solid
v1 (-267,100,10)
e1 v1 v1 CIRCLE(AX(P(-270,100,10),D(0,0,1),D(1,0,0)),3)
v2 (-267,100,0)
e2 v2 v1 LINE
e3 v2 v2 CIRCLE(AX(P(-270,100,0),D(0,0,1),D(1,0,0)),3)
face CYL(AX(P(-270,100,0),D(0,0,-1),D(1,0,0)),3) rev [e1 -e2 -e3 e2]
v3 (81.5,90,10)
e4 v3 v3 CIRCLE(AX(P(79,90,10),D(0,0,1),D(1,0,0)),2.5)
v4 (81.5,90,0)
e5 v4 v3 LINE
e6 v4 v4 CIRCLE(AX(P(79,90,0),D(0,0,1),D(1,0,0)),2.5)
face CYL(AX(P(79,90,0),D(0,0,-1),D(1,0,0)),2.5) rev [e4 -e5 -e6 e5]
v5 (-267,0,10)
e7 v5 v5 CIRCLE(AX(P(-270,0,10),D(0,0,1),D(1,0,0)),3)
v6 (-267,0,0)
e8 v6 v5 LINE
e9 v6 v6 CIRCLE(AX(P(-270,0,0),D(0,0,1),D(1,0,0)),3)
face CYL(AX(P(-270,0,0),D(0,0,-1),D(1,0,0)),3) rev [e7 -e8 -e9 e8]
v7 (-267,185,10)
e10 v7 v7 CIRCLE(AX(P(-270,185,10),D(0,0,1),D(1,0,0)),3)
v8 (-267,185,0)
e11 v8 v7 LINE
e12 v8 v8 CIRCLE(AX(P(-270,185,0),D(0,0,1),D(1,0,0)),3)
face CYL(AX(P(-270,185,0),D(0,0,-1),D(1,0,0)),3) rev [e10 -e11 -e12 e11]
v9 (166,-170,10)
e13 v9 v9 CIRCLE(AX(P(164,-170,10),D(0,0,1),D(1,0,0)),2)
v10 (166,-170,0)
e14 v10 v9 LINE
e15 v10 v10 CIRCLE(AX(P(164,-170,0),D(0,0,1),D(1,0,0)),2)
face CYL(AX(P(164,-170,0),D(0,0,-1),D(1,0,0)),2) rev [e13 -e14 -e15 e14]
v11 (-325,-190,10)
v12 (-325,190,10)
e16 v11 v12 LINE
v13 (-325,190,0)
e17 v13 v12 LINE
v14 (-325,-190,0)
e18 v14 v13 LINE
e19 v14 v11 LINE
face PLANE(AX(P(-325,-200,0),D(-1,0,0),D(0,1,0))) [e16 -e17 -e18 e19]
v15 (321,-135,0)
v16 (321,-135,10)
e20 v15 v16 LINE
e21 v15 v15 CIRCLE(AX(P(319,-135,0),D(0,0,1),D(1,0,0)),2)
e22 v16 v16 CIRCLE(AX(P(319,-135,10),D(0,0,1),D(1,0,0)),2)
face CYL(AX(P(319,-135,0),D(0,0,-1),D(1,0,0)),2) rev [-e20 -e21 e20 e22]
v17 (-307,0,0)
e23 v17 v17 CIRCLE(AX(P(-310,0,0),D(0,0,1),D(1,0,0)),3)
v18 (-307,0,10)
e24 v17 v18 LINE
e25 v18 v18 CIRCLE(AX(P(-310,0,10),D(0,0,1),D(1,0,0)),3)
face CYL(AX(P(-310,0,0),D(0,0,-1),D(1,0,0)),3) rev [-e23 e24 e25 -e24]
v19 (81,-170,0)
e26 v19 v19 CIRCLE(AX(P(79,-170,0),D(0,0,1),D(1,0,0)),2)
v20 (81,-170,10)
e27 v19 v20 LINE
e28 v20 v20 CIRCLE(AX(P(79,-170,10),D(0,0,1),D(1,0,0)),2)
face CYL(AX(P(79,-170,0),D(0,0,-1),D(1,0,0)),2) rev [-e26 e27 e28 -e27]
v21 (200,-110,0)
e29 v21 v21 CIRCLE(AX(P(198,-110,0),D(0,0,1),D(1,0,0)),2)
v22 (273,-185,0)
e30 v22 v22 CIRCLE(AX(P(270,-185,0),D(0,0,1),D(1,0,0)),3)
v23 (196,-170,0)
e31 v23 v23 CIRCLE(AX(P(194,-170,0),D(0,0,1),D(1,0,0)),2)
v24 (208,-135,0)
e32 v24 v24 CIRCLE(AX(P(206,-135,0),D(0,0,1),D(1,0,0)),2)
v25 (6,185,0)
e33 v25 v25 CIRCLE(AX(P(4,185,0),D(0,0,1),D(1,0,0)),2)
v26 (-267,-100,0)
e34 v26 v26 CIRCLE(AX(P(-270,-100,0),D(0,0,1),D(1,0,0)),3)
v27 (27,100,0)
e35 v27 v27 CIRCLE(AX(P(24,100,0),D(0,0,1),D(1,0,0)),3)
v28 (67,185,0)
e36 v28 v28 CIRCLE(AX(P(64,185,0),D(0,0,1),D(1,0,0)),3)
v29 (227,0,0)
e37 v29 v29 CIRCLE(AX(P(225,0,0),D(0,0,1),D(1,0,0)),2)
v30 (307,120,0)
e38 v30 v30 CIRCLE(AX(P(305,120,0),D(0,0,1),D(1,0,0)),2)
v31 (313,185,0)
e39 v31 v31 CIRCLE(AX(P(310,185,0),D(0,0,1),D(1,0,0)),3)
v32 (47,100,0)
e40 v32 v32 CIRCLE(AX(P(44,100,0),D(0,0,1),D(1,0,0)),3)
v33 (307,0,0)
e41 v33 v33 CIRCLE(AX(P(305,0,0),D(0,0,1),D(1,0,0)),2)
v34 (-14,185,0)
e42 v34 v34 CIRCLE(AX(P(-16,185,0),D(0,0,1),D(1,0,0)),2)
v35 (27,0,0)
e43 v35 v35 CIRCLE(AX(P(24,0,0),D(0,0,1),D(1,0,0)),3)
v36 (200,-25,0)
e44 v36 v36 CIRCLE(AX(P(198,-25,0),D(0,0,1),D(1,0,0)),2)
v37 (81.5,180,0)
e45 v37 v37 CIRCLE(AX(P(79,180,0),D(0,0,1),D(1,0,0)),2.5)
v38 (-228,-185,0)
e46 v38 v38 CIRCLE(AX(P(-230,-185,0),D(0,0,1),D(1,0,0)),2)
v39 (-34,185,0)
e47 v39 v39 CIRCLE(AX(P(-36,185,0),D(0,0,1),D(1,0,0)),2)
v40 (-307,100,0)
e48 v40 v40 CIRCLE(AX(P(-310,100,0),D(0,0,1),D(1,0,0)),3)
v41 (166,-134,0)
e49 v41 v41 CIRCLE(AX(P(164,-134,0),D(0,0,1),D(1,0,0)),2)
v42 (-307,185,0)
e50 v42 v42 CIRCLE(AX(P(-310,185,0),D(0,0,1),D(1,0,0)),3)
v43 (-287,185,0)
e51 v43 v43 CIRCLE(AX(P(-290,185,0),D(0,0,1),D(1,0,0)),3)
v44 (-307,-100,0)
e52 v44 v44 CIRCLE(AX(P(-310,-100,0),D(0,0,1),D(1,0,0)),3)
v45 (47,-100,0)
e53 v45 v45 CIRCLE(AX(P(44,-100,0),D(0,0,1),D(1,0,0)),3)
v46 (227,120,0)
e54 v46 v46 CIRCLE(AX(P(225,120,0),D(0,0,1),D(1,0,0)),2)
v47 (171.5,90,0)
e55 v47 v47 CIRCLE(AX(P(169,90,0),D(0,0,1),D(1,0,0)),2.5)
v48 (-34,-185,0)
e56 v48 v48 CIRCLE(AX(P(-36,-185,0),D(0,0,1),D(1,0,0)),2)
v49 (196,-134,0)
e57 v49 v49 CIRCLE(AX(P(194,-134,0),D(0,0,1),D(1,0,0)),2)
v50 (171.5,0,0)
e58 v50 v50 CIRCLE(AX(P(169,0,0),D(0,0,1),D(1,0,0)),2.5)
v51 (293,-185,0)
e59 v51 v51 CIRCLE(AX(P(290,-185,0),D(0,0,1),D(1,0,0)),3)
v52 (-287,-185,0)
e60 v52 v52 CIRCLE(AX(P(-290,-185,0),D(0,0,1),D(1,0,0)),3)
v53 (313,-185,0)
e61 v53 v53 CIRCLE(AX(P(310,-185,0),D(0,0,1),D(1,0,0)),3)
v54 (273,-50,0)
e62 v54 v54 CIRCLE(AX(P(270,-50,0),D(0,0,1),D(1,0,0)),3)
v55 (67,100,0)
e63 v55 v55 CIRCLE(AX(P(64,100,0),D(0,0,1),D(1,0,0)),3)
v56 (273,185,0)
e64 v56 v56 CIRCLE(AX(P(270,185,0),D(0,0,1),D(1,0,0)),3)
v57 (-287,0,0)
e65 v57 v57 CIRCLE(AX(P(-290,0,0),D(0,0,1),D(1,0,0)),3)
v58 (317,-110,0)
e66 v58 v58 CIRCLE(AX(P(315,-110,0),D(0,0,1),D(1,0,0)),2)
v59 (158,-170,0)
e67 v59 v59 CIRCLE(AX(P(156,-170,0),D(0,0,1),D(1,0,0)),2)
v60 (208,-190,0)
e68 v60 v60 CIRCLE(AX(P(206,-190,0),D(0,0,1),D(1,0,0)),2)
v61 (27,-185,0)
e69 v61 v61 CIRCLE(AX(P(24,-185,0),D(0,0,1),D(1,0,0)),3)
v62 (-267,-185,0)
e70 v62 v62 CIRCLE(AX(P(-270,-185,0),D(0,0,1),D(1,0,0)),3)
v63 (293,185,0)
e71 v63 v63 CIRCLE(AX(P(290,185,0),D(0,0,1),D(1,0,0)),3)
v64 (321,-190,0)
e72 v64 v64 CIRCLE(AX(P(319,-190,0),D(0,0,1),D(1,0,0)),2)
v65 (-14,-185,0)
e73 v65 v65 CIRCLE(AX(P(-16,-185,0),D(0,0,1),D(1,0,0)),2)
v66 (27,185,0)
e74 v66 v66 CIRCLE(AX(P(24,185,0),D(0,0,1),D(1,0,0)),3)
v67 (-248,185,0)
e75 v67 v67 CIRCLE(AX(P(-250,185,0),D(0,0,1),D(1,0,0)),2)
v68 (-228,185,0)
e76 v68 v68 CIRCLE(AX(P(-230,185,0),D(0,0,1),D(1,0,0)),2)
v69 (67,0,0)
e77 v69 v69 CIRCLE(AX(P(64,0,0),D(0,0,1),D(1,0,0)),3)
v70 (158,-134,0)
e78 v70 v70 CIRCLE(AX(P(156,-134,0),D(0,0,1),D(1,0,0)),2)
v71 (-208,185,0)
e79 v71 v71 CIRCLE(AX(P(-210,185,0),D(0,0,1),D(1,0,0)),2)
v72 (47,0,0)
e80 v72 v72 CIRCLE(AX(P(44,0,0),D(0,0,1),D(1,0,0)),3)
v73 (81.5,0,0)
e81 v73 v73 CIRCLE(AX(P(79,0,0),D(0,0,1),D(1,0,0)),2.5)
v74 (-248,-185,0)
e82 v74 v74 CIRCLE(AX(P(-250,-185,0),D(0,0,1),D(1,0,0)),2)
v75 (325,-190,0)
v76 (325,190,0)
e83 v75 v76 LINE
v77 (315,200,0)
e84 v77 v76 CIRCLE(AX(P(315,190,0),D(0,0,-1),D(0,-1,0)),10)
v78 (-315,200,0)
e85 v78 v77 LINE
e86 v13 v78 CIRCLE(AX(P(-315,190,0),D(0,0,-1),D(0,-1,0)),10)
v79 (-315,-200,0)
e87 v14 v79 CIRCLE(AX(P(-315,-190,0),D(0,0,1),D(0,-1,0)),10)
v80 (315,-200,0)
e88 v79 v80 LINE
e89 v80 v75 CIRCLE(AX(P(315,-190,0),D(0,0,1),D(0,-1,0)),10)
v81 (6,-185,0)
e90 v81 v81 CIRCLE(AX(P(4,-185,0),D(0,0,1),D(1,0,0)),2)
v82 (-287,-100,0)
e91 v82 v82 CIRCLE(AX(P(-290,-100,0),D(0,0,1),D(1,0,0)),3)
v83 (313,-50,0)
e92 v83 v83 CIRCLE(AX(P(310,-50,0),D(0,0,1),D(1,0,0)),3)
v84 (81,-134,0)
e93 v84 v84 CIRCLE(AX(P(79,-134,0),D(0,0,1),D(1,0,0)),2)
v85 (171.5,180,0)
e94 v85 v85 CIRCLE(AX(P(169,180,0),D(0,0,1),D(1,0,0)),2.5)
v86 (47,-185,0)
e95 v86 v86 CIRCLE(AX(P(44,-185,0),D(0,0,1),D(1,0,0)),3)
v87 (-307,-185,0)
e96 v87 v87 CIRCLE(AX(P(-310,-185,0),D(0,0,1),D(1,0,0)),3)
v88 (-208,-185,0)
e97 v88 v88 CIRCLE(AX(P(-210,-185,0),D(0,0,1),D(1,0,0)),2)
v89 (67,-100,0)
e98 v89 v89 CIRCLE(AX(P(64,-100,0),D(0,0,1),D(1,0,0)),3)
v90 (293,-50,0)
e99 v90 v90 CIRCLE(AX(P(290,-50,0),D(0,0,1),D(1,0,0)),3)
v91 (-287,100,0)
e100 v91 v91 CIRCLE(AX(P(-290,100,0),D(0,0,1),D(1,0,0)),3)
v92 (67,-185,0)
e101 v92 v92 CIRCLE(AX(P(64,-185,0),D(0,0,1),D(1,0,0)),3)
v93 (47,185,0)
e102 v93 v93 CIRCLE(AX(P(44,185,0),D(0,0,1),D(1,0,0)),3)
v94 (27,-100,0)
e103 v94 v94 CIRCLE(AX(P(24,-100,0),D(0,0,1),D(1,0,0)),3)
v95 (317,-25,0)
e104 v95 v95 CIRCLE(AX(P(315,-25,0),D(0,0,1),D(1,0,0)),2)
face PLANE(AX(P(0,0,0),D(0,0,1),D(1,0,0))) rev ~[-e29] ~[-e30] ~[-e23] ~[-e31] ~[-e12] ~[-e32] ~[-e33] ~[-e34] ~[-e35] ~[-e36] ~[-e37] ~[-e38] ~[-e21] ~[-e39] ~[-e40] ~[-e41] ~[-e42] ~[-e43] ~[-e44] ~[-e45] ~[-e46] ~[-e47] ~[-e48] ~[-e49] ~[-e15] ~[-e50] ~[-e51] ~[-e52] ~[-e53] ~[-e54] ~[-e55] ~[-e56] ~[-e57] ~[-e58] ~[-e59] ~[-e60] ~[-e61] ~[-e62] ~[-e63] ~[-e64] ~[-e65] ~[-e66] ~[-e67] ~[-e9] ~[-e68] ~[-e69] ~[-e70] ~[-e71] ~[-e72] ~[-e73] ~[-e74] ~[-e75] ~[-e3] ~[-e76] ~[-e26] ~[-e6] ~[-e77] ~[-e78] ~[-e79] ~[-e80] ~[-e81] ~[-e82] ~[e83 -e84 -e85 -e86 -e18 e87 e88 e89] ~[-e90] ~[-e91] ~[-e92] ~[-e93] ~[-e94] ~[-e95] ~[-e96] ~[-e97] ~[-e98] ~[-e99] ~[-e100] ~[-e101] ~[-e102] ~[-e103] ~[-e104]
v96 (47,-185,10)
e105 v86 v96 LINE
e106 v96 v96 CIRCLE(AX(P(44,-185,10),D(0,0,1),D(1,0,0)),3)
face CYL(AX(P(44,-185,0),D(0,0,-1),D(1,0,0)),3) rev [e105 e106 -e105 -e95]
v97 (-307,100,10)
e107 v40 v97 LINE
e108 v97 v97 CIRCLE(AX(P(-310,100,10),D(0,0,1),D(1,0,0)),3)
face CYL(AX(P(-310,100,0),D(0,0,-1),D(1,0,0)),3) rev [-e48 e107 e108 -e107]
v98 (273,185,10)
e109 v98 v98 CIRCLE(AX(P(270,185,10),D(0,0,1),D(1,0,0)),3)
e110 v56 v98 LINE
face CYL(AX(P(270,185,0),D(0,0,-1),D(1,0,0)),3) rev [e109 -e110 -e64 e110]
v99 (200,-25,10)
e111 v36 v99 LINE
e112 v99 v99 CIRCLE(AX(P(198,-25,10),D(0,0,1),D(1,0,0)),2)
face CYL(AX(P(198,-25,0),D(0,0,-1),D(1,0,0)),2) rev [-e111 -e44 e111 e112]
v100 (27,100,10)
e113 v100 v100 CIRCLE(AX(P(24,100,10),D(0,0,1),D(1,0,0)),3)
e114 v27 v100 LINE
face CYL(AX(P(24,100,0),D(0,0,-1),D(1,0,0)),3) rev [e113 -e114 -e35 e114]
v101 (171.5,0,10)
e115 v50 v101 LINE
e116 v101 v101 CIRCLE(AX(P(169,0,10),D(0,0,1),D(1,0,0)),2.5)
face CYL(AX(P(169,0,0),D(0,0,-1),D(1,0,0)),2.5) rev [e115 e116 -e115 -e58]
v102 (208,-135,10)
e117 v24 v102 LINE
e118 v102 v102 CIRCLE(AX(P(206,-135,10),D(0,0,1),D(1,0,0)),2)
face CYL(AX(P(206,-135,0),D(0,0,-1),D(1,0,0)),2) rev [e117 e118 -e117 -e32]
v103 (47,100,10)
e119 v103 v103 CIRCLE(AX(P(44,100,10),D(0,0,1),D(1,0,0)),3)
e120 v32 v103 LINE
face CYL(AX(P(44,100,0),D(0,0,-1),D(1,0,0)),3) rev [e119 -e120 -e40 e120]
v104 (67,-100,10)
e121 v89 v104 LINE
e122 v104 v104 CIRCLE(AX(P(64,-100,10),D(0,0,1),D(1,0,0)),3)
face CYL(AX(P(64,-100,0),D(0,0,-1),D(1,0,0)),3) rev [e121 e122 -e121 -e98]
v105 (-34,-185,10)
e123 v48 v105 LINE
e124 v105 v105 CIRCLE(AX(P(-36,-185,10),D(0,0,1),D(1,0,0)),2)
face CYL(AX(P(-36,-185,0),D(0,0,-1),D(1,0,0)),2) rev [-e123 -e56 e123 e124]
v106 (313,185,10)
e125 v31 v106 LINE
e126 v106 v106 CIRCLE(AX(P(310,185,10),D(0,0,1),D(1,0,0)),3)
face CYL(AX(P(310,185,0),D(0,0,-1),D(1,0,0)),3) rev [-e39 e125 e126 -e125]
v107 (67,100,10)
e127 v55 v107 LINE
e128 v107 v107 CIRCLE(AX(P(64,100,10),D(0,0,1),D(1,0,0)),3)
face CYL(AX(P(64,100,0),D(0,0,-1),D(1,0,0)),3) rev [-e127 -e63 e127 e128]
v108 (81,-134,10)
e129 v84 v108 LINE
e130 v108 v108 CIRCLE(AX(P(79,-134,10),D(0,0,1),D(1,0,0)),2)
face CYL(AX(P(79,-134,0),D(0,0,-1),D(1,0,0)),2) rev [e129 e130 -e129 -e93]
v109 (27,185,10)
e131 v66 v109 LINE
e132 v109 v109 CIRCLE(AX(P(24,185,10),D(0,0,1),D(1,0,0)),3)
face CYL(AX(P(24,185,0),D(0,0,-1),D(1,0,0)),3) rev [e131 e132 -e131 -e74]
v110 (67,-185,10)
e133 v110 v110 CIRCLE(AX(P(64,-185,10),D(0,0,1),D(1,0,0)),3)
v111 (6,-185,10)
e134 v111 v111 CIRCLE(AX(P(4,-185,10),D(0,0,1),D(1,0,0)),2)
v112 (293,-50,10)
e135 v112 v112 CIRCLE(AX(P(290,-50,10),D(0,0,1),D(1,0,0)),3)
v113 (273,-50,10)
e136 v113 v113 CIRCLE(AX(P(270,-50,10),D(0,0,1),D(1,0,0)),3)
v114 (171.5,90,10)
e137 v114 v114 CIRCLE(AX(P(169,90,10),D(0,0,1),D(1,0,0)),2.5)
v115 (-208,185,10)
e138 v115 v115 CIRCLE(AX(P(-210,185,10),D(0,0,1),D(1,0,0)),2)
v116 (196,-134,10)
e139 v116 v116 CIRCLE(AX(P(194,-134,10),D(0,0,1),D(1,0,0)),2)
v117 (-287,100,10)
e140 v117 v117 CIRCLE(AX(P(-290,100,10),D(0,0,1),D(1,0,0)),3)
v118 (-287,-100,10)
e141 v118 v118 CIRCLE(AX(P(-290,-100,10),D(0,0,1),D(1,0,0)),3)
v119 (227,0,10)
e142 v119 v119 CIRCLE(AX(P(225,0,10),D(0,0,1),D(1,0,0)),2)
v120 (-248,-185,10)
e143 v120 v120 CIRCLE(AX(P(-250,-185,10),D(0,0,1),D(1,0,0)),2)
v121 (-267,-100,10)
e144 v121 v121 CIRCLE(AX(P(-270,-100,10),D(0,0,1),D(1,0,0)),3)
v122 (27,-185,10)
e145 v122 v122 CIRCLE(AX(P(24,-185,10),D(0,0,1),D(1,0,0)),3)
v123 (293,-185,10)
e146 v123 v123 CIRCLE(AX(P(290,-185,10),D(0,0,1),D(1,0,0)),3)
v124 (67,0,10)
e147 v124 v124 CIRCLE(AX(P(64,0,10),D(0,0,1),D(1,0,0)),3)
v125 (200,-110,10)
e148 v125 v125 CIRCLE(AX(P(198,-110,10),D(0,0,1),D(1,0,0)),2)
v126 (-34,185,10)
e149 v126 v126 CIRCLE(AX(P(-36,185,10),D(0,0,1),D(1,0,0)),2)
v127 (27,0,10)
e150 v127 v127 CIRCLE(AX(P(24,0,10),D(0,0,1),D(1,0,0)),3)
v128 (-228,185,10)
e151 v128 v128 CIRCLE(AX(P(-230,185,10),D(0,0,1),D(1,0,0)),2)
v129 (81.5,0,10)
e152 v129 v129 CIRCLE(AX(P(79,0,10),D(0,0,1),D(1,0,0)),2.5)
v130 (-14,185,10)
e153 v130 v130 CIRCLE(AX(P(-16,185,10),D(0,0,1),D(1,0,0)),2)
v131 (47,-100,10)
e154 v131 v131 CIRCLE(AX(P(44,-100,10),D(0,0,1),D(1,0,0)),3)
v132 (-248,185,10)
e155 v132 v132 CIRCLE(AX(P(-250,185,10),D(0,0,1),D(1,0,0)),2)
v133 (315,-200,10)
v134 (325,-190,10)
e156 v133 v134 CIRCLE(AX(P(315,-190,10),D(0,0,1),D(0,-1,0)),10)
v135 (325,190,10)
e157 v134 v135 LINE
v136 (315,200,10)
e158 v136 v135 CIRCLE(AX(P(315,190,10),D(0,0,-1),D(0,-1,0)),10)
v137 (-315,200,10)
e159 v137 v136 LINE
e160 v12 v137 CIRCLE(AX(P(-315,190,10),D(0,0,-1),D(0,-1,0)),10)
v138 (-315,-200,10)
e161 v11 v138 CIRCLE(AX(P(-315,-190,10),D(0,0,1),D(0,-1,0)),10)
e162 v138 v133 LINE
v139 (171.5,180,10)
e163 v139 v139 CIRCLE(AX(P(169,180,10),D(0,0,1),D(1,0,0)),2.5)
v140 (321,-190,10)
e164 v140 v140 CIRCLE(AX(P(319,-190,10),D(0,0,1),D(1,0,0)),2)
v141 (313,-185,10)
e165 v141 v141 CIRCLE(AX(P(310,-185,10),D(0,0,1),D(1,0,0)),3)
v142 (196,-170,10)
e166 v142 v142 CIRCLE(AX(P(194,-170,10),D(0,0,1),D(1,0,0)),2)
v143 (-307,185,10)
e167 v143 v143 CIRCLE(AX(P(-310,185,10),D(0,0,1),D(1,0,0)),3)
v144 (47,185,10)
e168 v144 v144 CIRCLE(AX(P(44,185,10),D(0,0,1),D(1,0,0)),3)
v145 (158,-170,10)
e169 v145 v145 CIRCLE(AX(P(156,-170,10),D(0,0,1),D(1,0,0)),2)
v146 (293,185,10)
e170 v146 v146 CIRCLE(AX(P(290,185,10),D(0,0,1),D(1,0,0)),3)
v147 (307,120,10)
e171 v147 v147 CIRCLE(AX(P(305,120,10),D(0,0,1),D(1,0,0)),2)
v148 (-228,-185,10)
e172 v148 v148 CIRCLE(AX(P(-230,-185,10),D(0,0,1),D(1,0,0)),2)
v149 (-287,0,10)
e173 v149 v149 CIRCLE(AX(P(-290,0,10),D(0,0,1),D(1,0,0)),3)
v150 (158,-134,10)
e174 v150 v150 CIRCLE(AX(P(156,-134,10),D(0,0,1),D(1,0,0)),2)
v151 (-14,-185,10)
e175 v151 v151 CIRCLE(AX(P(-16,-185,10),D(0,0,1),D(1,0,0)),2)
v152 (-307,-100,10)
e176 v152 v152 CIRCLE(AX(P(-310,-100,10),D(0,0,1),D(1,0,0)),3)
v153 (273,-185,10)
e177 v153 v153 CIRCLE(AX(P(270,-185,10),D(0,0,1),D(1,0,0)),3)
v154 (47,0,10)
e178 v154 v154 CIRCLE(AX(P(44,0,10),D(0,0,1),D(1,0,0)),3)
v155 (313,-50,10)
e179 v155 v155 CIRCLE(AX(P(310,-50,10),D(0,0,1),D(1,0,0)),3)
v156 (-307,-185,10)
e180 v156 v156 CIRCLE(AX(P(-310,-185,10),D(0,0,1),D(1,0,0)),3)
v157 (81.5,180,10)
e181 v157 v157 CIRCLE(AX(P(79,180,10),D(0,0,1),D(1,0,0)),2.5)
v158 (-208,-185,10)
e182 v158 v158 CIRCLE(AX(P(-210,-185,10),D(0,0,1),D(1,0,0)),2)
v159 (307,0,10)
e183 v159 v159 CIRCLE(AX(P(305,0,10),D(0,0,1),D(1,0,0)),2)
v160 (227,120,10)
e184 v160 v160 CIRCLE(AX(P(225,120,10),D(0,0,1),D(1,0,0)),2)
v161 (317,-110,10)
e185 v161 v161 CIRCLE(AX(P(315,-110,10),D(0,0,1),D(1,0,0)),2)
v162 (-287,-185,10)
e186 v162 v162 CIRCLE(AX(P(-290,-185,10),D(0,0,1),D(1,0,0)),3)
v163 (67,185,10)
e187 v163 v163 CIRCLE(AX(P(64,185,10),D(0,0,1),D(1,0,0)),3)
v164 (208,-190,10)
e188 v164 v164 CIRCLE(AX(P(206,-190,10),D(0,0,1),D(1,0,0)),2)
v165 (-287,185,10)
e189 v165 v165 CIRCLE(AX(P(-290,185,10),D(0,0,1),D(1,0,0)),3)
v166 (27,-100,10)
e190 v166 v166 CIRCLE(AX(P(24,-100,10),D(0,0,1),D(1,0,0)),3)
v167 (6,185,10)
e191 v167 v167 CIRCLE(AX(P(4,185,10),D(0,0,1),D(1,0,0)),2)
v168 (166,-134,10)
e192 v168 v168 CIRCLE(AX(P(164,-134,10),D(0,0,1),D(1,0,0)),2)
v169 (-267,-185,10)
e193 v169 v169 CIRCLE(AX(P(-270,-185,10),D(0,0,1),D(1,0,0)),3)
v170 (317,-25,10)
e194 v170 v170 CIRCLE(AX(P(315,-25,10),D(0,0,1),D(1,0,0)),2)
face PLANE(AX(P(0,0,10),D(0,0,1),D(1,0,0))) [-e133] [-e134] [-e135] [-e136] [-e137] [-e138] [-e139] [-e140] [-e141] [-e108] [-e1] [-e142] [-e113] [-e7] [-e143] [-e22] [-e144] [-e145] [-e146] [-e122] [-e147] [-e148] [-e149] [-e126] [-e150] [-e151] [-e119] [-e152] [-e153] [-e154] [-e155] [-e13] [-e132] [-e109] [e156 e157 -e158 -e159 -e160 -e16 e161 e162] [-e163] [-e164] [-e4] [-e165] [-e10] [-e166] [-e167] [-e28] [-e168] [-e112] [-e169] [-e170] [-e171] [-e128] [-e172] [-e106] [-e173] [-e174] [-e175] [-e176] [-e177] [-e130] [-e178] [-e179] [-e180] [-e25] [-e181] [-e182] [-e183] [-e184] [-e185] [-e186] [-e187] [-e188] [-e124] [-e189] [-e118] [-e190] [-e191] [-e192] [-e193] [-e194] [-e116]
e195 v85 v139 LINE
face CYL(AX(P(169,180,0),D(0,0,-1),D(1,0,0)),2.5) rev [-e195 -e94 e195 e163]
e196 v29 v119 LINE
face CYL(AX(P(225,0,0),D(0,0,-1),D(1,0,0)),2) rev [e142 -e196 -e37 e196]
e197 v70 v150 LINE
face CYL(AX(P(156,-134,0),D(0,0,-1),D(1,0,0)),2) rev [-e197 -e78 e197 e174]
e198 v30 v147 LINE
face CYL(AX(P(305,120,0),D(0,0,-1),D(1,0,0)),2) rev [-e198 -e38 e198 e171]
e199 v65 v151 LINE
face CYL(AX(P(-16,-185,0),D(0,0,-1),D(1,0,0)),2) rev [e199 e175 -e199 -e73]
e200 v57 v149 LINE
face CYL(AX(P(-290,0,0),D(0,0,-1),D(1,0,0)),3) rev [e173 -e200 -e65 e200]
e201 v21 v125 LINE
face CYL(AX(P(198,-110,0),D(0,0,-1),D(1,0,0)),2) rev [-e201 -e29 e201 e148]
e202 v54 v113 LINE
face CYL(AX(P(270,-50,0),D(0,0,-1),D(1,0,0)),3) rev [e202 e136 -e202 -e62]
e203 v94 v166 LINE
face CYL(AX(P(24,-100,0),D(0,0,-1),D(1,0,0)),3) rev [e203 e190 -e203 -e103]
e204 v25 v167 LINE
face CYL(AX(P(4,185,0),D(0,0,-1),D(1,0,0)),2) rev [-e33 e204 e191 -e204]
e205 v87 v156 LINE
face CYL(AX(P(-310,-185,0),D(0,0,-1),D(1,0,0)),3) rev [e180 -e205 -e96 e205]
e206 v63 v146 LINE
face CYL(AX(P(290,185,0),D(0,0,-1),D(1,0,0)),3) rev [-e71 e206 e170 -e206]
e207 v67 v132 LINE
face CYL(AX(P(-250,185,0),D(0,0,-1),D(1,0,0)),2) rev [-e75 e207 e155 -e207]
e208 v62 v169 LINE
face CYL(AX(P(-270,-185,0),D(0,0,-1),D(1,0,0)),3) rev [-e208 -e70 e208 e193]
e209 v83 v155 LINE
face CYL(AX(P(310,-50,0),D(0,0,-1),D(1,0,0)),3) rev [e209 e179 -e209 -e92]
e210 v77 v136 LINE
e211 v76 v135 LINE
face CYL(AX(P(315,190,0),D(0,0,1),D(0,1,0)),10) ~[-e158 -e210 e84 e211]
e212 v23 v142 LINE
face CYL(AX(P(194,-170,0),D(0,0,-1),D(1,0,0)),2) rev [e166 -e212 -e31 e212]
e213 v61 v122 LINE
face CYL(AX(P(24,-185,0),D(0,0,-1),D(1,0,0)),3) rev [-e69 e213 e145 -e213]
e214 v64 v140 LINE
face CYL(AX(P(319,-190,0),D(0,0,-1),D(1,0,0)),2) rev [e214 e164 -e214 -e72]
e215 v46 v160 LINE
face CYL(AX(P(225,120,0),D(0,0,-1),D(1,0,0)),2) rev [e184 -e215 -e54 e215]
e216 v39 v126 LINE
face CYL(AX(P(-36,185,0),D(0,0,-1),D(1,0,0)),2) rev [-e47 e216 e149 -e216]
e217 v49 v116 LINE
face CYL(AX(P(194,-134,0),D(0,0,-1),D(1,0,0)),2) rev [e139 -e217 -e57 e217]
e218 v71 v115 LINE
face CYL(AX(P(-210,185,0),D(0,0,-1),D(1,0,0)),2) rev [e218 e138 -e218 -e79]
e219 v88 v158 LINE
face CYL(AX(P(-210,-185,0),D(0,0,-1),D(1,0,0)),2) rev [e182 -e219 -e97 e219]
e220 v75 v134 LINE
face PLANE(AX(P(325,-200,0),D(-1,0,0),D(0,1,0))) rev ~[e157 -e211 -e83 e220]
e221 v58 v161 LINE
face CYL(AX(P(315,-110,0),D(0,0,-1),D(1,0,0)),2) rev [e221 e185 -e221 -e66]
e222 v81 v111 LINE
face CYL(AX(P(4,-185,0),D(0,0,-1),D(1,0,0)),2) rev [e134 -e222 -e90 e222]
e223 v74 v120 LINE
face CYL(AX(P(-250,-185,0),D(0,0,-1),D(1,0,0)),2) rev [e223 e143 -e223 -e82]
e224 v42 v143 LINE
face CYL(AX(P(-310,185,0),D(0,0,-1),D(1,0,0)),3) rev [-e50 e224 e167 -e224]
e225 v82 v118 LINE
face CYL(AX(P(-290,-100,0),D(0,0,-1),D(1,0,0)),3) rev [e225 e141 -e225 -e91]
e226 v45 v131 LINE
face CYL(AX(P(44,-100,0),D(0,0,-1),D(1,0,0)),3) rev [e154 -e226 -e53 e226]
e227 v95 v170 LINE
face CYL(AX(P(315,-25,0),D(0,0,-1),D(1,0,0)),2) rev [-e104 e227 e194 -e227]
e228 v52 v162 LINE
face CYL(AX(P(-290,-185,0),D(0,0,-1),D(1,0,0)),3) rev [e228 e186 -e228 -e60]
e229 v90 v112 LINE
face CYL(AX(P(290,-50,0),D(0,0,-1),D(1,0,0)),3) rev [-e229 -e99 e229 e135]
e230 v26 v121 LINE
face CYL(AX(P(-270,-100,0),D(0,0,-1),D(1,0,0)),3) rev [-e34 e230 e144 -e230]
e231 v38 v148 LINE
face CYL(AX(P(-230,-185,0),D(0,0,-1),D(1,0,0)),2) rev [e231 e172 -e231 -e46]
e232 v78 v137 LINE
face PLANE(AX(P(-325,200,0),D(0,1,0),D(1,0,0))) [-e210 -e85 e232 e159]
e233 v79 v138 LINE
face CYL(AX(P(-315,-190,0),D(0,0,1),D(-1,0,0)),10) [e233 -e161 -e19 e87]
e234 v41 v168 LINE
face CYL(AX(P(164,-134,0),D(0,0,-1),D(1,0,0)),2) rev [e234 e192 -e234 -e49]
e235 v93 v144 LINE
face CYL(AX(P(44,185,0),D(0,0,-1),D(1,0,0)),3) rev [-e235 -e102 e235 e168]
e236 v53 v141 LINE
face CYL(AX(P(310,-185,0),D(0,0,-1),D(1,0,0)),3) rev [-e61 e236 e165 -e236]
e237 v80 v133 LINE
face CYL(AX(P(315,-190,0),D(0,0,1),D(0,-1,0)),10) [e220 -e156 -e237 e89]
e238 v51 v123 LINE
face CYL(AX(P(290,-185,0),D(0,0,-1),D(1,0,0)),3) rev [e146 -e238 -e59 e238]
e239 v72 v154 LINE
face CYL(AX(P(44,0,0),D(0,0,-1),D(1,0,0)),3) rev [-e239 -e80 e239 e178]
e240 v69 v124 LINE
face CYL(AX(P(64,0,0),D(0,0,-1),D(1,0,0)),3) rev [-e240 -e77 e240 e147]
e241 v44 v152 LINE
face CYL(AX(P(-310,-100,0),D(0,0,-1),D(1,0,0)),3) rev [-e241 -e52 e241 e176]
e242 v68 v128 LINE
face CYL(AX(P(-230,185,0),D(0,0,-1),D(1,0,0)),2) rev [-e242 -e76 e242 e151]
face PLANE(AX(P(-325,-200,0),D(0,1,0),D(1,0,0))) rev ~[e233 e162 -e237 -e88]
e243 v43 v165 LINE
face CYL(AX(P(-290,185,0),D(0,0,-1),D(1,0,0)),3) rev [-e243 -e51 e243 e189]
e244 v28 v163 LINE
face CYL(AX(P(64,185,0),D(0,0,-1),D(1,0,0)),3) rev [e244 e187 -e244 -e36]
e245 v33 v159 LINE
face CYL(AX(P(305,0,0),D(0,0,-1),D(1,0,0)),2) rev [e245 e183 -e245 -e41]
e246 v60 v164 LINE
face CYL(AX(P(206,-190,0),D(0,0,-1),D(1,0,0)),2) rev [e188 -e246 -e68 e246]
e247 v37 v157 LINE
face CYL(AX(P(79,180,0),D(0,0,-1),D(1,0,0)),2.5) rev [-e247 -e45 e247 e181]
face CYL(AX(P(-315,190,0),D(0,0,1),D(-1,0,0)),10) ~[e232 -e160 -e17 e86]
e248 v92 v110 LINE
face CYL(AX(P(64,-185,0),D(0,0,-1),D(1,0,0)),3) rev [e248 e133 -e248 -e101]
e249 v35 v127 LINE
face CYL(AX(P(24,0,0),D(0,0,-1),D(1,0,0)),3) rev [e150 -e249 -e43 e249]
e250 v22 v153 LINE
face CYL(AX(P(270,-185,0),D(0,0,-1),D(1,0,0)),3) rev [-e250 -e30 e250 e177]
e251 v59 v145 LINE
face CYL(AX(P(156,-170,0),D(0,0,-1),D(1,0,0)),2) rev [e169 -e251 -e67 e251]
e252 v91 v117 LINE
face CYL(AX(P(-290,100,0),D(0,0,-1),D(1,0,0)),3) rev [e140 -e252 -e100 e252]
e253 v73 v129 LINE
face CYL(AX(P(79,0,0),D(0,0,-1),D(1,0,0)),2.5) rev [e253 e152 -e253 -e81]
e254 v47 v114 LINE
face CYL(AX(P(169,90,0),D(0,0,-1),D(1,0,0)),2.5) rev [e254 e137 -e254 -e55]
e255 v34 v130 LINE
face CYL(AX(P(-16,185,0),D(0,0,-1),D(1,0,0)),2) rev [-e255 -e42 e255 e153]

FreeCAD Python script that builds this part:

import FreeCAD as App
import Part
import Sketcher

V = App.Vector


def edges_at(feature, points):
    """Names of the edges that pass closest to the given points."""
    edges = feature.Shape.Edges
    near = lambda p: min(range(len(edges)), key=lambda i: edges[i].distToShape(Part.Vertex(*p))[0])
    return sorted({f"Edge{near(p) + 1}" for p in points})


def add_polygon(sketch, points):
    """Adds a closed chain of lines whose ends are joined by coincident constraints."""
    first, n = sketch.GeometryCount, len(points)
    for a, b in zip(points, points[1:] + points[:1]):
        sketch.addGeometry(Part.LineSegment(App.Vector(*a, 0), App.Vector(*b, 0)), False)
    for i in range(n):
        sketch.addConstraint(Sketcher.Constraint("Coincident", first + i, 2, first + (i + 1) % n, 1))

doc = App.newDocument("Part")
body = doc.addObject("PartDesign::Body", "Body")

# Sketch on XY plane
sketch1 = doc.addObject("Sketcher::SketchObject", "Sketch")
body.addObject(sketch1)
sketch1.AttachmentSupport = (doc.XY_Plane, [""])
sketch1.MapMode = "FlatFace"
add_polygon(sketch1, [(-325, 200), (-325, -200), (325, -200), (325, 200)])  # lines 0-3
sketch1.addGeometry(Part.Circle(V(-310, -185, 0), V(0, 0, 1), 3), False)  # 4
sketch1.addGeometry(Part.Circle(V(-290, -185, 0), V(0, 0, 1), 3), False)  # 5
sketch1.addGeometry(Part.Circle(V(-270, -185, 0), V(0, 0, 1), 3), False)  # 6
sketch1.addGeometry(Part.Circle(V(-250, -185, 0), V(0, 0, 1), 2), False)  # 7
sketch1.addGeometry(Part.Circle(V(-230, -185, 0), V(0, 0, 1), 2), False)  # 8
sketch1.addGeometry(Part.Circle(V(-210, -185, 0), V(0, 0, 1), 2), False)  # 9
sketch1.addGeometry(Part.Circle(V(-310, -100, 0), V(0, 0, 1), 3), False)  # 10
sketch1.addGeometry(Part.Circle(V(-290, -100, 0), V(0, 0, 1), 3), False)  # 11
sketch1.addGeometry(Part.Circle(V(-270, -100, 0), V(0, 0, 1), 3), False)  # 12
sketch1.addGeometry(Part.Circle(V(-36, -185, 0), V(0, 0, 1), 2), False)  # 13
sketch1.addGeometry(Part.Circle(V(-16, -185, 0), V(0, 0, 1), 2), False)  # 14
sketch1.addGeometry(Part.Circle(V(4, -185, 0), V(0, 0, 1), 2), False)  # 15
sketch1.addGeometry(Part.Circle(V(24, -185, 0), V(0, 0, 1), 3), False)  # 16
sketch1.addGeometry(Part.Circle(V(44, -185, 0), V(0, 0, 1), 3), False)  # 17
sketch1.addGeometry(Part.Circle(V(64, -185, 0), V(0, 0, 1), 3), False)  # 18
sketch1.addGeometry(Part.Circle(V(79, -170, 0), V(0, 0, 1), 2), False)  # 19
sketch1.addGeometry(Part.Circle(V(156, -170, 0), V(0, 0, 1), 2), False)  # 20
sketch1.addGeometry(Part.Circle(V(79, -134, 0), V(0, 0, 1), 2), False)  # 21
sketch1.addGeometry(Part.Circle(V(24, -100, 0), V(0, 0, 1), 3), False)  # 22
sketch1.addGeometry(Part.Circle(V(44, -100, 0), V(0, 0, 1), 3), False)  # 23
sketch1.addGeometry(Part.Circle(V(64, -100, 0), V(0, 0, 1), 3), False)  # 24
sketch1.addGeometry(Part.Circle(V(156, -134, 0), V(0, 0, 1), 2), False)  # 25
sketch1.addGeometry(Part.Circle(V(164, -170, 0), V(0, 0, 1), 2), False)  # 26
sketch1.addGeometry(Part.Circle(V(194, -170, 0), V(0, 0, 1), 2), False)  # 27
sketch1.addGeometry(Part.Circle(V(206, -190, 0), V(0, 0, 1), 2), False)  # 28
sketch1.addGeometry(Part.Circle(V(270, -185, 0), V(0, 0, 1), 3), False)  # 29
sketch1.addGeometry(Part.Circle(V(290, -185, 0), V(0, 0, 1), 3), False)  # 30
sketch1.addGeometry(Part.Circle(V(319, -190, 0), V(0, 0, 1), 2), False)  # 31
sketch1.addGeometry(Part.Circle(V(310, -185, 0), V(0, 0, 1), 3), False)  # 32
sketch1.addGeometry(Part.Circle(V(164, -134, 0), V(0, 0, 1), 2), False)  # 33
sketch1.addGeometry(Part.Circle(V(194, -134, 0), V(0, 0, 1), 2), False)  # 34
sketch1.addGeometry(Part.Circle(V(206, -135, 0), V(0, 0, 1), 2), False)  # 35
sketch1.addGeometry(Part.Circle(V(198, -110, 0), V(0, 0, 1), 2), False)  # 36
sketch1.addGeometry(Part.Circle(V(319, -135, 0), V(0, 0, 1), 2), False)  # 37
sketch1.addGeometry(Part.Circle(V(315, -110, 0), V(0, 0, 1), 2), False)  # 38
sketch1.addGeometry(Part.Circle(V(270, -50, 0), V(0, 0, 1), 3), False)  # 39
sketch1.addGeometry(Part.Circle(V(290, -50, 0), V(0, 0, 1), 3), False)  # 40
sketch1.addGeometry(Part.Circle(V(310, -50, 0), V(0, 0, 1), 3), False)  # 41
sketch1.addGeometry(Part.Circle(V(198, -25, 0), V(0, 0, 1), 2), False)  # 42
sketch1.addGeometry(Part.Circle(V(315, -25, 0), V(0, 0, 1), 2), False)  # 43
sketch1.addGeometry(Part.Circle(V(-310, 0, 0), V(0, 0, 1), 3), False)  # 44
sketch1.addGeometry(Part.Circle(V(-290, 0, 0), V(0, 0, 1), 3), False)  # 45
sketch1.addGeometry(Part.Circle(V(-270, 0, 0), V(0, 0, 1), 3), False)  # 46
sketch1.addGeometry(Part.Circle(V(-310, 100, 0), V(0, 0, 1), 3), False)  # 47
sketch1.addGeometry(Part.Circle(V(-290, 100, 0), V(0, 0, 1), 3), False)  # 48
sketch1.addGeometry(Part.Circle(V(-270, 100, 0), V(0, 0, 1), 3), False)  # 49
sketch1.addGeometry(Part.Circle(V(-310, 185, 0), V(0, 0, 1), 3), False)  # 50
sketch1.addGeometry(Part.Circle(V(-290, 185, 0), V(0, 0, 1), 3), False)  # 51
sketch1.addGeometry(Part.Circle(V(-270, 185, 0), V(0, 0, 1), 3), False)  # 52
sketch1.addGeometry(Part.Circle(V(-250, 185, 0), V(0, 0, 1), 2), False)  # 53
sketch1.addGeometry(Part.Circle(V(-230, 185, 0), V(0, 0, 1), 2), False)  # 54
sketch1.addGeometry(Part.Circle(V(-210, 185, 0), V(0, 0, 1), 2), False)  # 55
sketch1.addGeometry(Part.Circle(V(-36, 185, 0), V(0, 0, 1), 2), False)  # 56
sketch1.addGeometry(Part.Circle(V(-16, 185, 0), V(0, 0, 1), 2), False)  # 57
sketch1.addGeometry(Part.Circle(V(24, 0, 0), V(0, 0, 1), 3), False)  # 58
sketch1.addGeometry(Part.Circle(V(44, 0, 0), V(0, 0, 1), 3), False)  # 59
sketch1.addGeometry(Part.Circle(V(64, 0, 0), V(0, 0, 1), 3), False)  # 60
sketch1.addGeometry(Part.Circle(V(79, 0, 0), V(0, 0, 1), 2.5), False)  # 61
sketch1.addGeometry(Part.Circle(V(79, 90, 0), V(0, 0, 1), 2.5), False)  # 62
sketch1.addGeometry(Part.Circle(V(169, 0, 0), V(0, 0, 1), 2.5), False)  # 63
sketch1.addGeometry(Part.Circle(V(225, 0, 0), V(0, 0, 1), 2), False)  # 64
sketch1.addGeometry(Part.Circle(V(305, 0, 0), V(0, 0, 1), 2), False)  # 65
sketch1.addGeometry(Part.Circle(V(169, 90, 0), V(0, 0, 1), 2.5), False)  # 66
sketch1.addGeometry(Part.Circle(V(24, 100, 0), V(0, 0, 1), 3), False)  # 67
sketch1.addGeometry(Part.Circle(V(44, 100, 0), V(0, 0, 1), 3), False)  # 68
sketch1.addGeometry(Part.Circle(V(64, 100, 0), V(0, 0, 1), 3), False)  # 69
sketch1.addGeometry(Part.Circle(V(4, 185, 0), V(0, 0, 1), 2), False)  # 70
sketch1.addGeometry(Part.Circle(V(24, 185, 0), V(0, 0, 1), 3), False)  # 71
sketch1.addGeometry(Part.Circle(V(44, 185, 0), V(0, 0, 1), 3), False)  # 72
sketch1.addGeometry(Part.Circle(V(79, 180, 0), V(0, 0, 1), 2.5), False)  # 73
sketch1.addGeometry(Part.Circle(V(64, 185, 0), V(0, 0, 1), 3), False)  # 74
sketch1.addGeometry(Part.Circle(V(225, 120, 0), V(0, 0, 1), 2), False)  # 75
sketch1.addGeometry(Part.Circle(V(305, 120, 0), V(0, 0, 1), 2), False)  # 76
sketch1.addGeometry(Part.Circle(V(169, 180, 0), V(0, 0, 1), 2.5), False)  # 77
sketch1.addGeometry(Part.Circle(V(270, 185, 0), V(0, 0, 1), 3), False)  # 78
sketch1.addGeometry(Part.Circle(V(290, 185, 0), V(0, 0, 1), 3), False)  # 79
sketch1.addGeometry(Part.Circle(V(310, 185, 0), V(0, 0, 1), 3), False)  # 80
sketch1.addConstraint(Sketcher.Constraint("Vertical", 0))
sketch1.addConstraint(Sketcher.Constraint("Horizontal", 1))
sketch1.addConstraint(Sketcher.Constraint("Vertical", 2))
sketch1.addConstraint(Sketcher.Constraint("Horizontal", 3))
sketch1.addConstraint(Sketcher.Constraint("Equal", 4, 5))
sketch1.addConstraint(Sketcher.Constraint("Equal", 5, 6))
sketch1.addConstraint(Sketcher.Constraint("Equal", 7, 8))
sketch1.addConstraint(Sketcher.Constraint("Equal", 8, 9))
sketch1.addConstraint(Sketcher.Constraint("Equal", 6, 10))
sketch1.addConstraint(Sketcher.Constraint("Equal", 10, 11))
sketch1.addConstraint(Sketcher.Constraint("Equal", 11, 12))
sketch1.addConstraint(Sketcher.Constraint("Equal", 9, 13))
sketch1.addConstraint(Sketcher.Constraint("Equal", 13, 14))
sketch1.addConstraint(Sketcher.Constraint("Equal", 14, 15))
sketch1.addConstraint(Sketcher.Constraint("Equal", 12, 16))
sketch1.addConstraint(Sketcher.Constraint("Equal", 16, 17))
sketch1.addConstraint(Sketcher.Constraint("Equal", 17, 18))
sketch1.addConstraint(Sketcher.Constraint("Equal", 15, 19))
sketch1.addConstraint(Sketcher.Constraint("Equal", 19, 20))
sketch1.addConstraint(Sketcher.Constraint("Equal", 20, 21))
sketch1.addConstraint(Sketcher.Constraint("Equal", 18, 22))
sketch1.addConstraint(Sketcher.Constraint("Equal", 22, 23))
sketch1.addConstraint(Sketcher.Constraint("Equal", 23, 24))
sketch1.addConstraint(Sketcher.Constraint("Equal", 21, 25))
sketch1.addConstraint(Sketcher.Constraint("Equal", 25, 26))
sketch1.addConstraint(Sketcher.Constraint("Equal", 26, 27))
sketch1.addConstraint(Sketcher.Constraint("Equal", 27, 28))
sketch1.addConstraint(Sketcher.Constraint("Equal", 24, 29))
sketch1.addConstraint(Sketcher.Constraint("Equal", 29, 30))
sketch1.addConstraint(Sketcher.Constraint("Equal", 28, 31))
sketch1.addConstraint(Sketcher.Constraint("Equal", 30, 32))
sketch1.addConstraint(Sketcher.Constraint("Equal", 31, 33))
sketch1.addConstraint(Sketcher.Constraint("Equal", 33, 34))
sketch1.addConstraint(Sketcher.Constraint("Equal", 34, 35))
sketch1.addConstraint(Sketcher.Constraint("Equal", 35, 36))
sketch1.addConstraint(Sketcher.Constraint("Equal", 36, 37))
sketch1.addConstraint(Sketcher.Constraint("Equal", 37, 38))
sketch1.addConstraint(Sketcher.Constraint("Equal", 32, 39))
sketch1.addConstraint(Sketcher.Constraint("Equal", 39, 40))
sketch1.addConstraint(Sketcher.Constraint("Equal", 40, 41))
sketch1.addConstraint(Sketcher.Constraint("Equal", 38, 42))
sketch1.addConstraint(Sketcher.Constraint("Equal", 42, 43))
sketch1.addConstraint(Sketcher.Constraint("Equal", 41, 44))
sketch1.addConstraint(Sketcher.Constraint("Equal", 44, 45))
sketch1.addConstraint(Sketcher.Constraint("Equal", 45, 46))
sketch1.addConstraint(Sketcher.Constraint("Equal", 46, 47))
sketch1.addConstraint(Sketcher.Constraint("Equal", 47, 48))
sketch1.addConstraint(Sketcher.Constraint("Equal", 48, 49))
sketch1.addConstraint(Sketcher.Constraint("Equal", 49, 50))
sketch1.addConstraint(Sketcher.Constraint("Equal", 50, 51))
sketch1.addConstraint(Sketcher.Constraint("Equal", 51, 52))
sketch1.addConstraint(Sketcher.Constraint("Equal", 43, 53))
sketch1.addConstraint(Sketcher.Constraint("Equal", 53, 54))
sketch1.addConstraint(Sketcher.Constraint("Equal", 54, 55))
sketch1.addConstraint(Sketcher.Constraint("Equal", 55, 56))
sketch1.addConstraint(Sketcher.Constraint("Equal", 56, 57))
sketch1.addConstraint(Sketcher.Constraint("Equal", 52, 58))
sketch1.addConstraint(Sketcher.Constraint("Equal", 58, 59))
sketch1.addConstraint(Sketcher.Constraint("Equal", 59, 60))
sketch1.addConstraint(Sketcher.Constraint("Equal", 61, 62))
sketch1.addConstraint(Sketcher.Constraint("Equal", 62, 63))
sketch1.addConstraint(Sketcher.Constraint("Equal", 57, 64))
sketch1.addConstraint(Sketcher.Constraint("Equal", 64, 65))
sketch1.addConstraint(Sketcher.Constraint("Equal", 63, 66))
sketch1.addConstraint(Sketcher.Constraint("Equal", 60, 67))
sketch1.addConstraint(Sketcher.Constraint("Equal", 67, 68))
sketch1.addConstraint(Sketcher.Constraint("Equal", 68, 69))
sketch1.addConstraint(Sketcher.Constraint("Equal", 65, 70))
sketch1.addConstraint(Sketcher.Constraint("Equal", 69, 71))
sketch1.addConstraint(Sketcher.Constraint("Equal", 71, 72))
sketch1.addConstraint(Sketcher.Constraint("Equal", 66, 73))
sketch1.addConstraint(Sketcher.Constraint("Equal", 72, 74))
sketch1.addConstraint(Sketcher.Constraint("Equal", 70, 75))
sketch1.addConstraint(Sketcher.Constraint("Equal", 75, 76))
sketch1.addConstraint(Sketcher.Constraint("Equal", 73, 77))
sketch1.addConstraint(Sketcher.Constraint("Equal", 74, 78))
sketch1.addConstraint(Sketcher.Constraint("Equal", 78, 79))
sketch1.addConstraint(Sketcher.Constraint("Equal", 79, 80))
sketch1.addConstraint(Sketcher.Constraint("Symmetric", 32, 3, 50, 3, -1, 1))
sketch1.addConstraint(Sketcher.Constraint("Symmetric", 30, 3, 51, 3, -1, 1))
sketch1.addConstraint(Sketcher.Constraint("Symmetric", 29, 3, 52, 3, -1, 1))
sketch1.addConstraint(Sketcher.Constraint("Symmetric", 6, 3, 78, 3, -1, 1))
sketch1.addConstraint(Sketcher.Constraint("Symmetric", 5, 3, 79, 3, -1, 1))
sketch1.addConstraint(Sketcher.Constraint("Symmetric", 4, 3, 80, 3, -1, 1))
sketch1.addConstraint(Sketcher.Constraint("Symmetric", 0, 2, 2, 2, -1, 1))
sketch1.addConstraint(Sketcher.Constraint("Symmetric", 6, 3, 29, 3, -2))
sketch1.addConstraint(Sketcher.Constraint("Symmetric", 5, 3, 30, 3, -2))
sketch1.addConstraint(Sketcher.Constraint("Symmetric", 4, 3, 32, 3, -2))
sketch1.addConstraint(Sketcher.Constraint("Symmetric", 10, 3, 47, 3, -1))
sketch1.addConstraint(Sketcher.Constraint("Symmetric", 11, 3, 48, 3, -1))
sketch1.addConstraint(Sketcher.Constraint("Symmetric", 12, 3, 49, 3, -1))
sketch1.addConstraint(Sketcher.Constraint("Symmetric", 7, 3, 53, 3, -1))
sketch1.addConstraint(Sketcher.Constraint("Symmetric", 8, 3, 54, 3, -1))
sketch1.addConstraint(Sketcher.Constraint("Symmetric", 9, 3, 55, 3, -1))
sketch1.addConstraint(Sketcher.Constraint("Symmetric", 13, 3, 56, 3, -1))
sketch1.addConstraint(Sketcher.Constraint("Symmetric", 14, 3, 57, 3, -1))
sketch1.addConstraint(Sketcher.Constraint("Symmetric", 22, 3, 67, 3, -1))
sketch1.addConstraint(Sketcher.Constraint("Symmetric", 23, 3, 68, 3, -1))
sketch1.addConstraint(Sketcher.Constraint("Symmetric", 24, 3, 69, 3, -1))
sketch1.addConstraint(Sketcher.Constraint("Symmetric", 15, 3, 70, 3, -1))
sketch1.addConstraint(Sketcher.Constraint("Symmetric", 16, 3, 71, 3, -1))
sketch1.addConstraint(Sketcher.Constraint("Symmetric", 17, 3, 72, 3, -1))
sketch1.addConstraint(Sketcher.Constraint("Symmetric", 18, 3, 74, 3, -1))
sketch1.addConstraint(Sketcher.Constraint("PointOnObject", 44, 3, -1))
sketch1.addConstraint(Sketcher.Constraint("PointOnObject", 45, 3, -1))
sketch1.addConstraint(Sketcher.Constraint("PointOnObject", 46, 3, -1))
sketch1.addConstraint(Sketcher.Constraint("PointOnObject", 58, 3, -1))
sketch1.addConstraint(Sketcher.Constraint("PointOnObject", 59, 3, -1))
sketch1.addConstraint(Sketcher.Constraint("PointOnObject", 60, 3, -1))
sketch1.addConstraint(Sketcher.Constraint("PointOnObject", 61, 3, -1))
sketch1.addConstraint(Sketcher.Constraint("PointOnObject", 63, 3, -1))
sketch1.addConstraint(Sketcher.Constraint("PointOnObject", 64, 3, -1))
sketch1.addConstraint(Sketcher.Constraint("PointOnObject", 65, 3, -1))
sketch1.addConstraint(Sketcher.Constraint("Horizontal", 4, 3, 5, 3))
sketch1.addConstraint(Sketcher.Constraint("Horizontal", 5, 3, 6, 3))
sketch1.addConstraint(Sketcher.Constraint("Horizontal", 6, 3, 7, 3))
sketch1.addConstraint(Sketcher.Constraint("Horizontal", 7, 3, 8, 3))
sketch1.addConstraint(Sketcher.Constraint("Horizontal", 8, 3, 9, 3))
sketch1.addConstraint(Sketcher.Constraint("Horizontal", 10, 3, 11, 3))
sketch1.addConstraint(Sketcher.Constraint("Horizontal", 11, 3, 12, 3))
sketch1.addConstraint(Sketcher.Constraint("Horizontal", 9, 3, 13, 3))
sketch1.addConstraint(Sketcher.Constraint("Horizontal", 13, 3, 14, 3))
sketch1.addConstraint(Sketcher.Constraint("Horizontal", 14, 3, 15, 3))
sketch1.addConstraint(Sketcher.Constraint("Horizontal", 15, 3, 16, 3))
sketch1.addConstraint(Sketcher.Constraint("Horizontal", 16, 3, 17, 3))
sketch1.addConstraint(Sketcher.Constraint("Horizontal", 17, 3, 18, 3))
sketch1.addConstraint(Sketcher.Constraint("Horizontal", 19, 3, 20, 3))
sketch1.addConstraint(Sketcher.Constraint("Horizontal", 12, 3, 22, 3))
sketch1.addConstraint(Sketcher.Constraint("Horizontal", 22, 3, 23, 3))
sketch1.addConstraint(Sketcher.Constraint("Horizontal", 23, 3, 24, 3))
sketch1.addConstraint(Sketcher.Constraint("Horizontal", 21, 3, 25, 3))
sketch1.addConstraint(Sketcher.Constraint("Horizontal", 20, 3, 26, 3))
sketch1.addConstraint(Sketcher.Constraint("Horizontal", 26, 3, 27, 3))
sketch1.addConstraint(Sketcher.Constraint("Horizontal", 28, 3, 31, 3))
sketch1.addConstraint(Sketcher.Constraint("Horizontal", 25, 3, 33, 3))
sketch1.addConstraint(Sketcher.Constraint("Horizontal", 33, 3, 34, 3))
sketch1.addConstraint(Sketcher.Constraint("Horizontal", 35, 3, 37, 3))
sketch1.addConstraint(Sketcher.Constraint("Horizontal", 36, 3, 38, 3))
sketch1.addConstraint(Sketcher.Constraint("Horizontal", 39, 3, 40, 3))
sketch1.addConstraint(Sketcher.Constraint("Horizontal", 40, 3, 41, 3))
sketch1.addConstraint(Sketcher.Constraint("Horizontal", 42, 3, 43, 3))
sketch1.addConstraint(Sketcher.Constraint("Horizontal", 62, 3, 66, 3))
sketch1.addConstraint(Sketcher.Constraint("Horizontal", 75, 3, 76, 3))
sketch1.addConstraint(Sketcher.Constraint("Horizontal", 73, 3, 77, 3))
sketch1.addConstraint(Sketcher.Constraint("Vertical", 4, 3, 10, 3))
sketch1.addConstraint(Sketcher.Constraint("Vertical", 5, 3, 11, 3))
sketch1.addConstraint(Sketcher.Constraint("Vertical", 6, 3, 12, 3))
sketch1.addConstraint(Sketcher.Constraint("Vertical", 19, 3, 21, 3))
sketch1.addConstraint(Sketcher.Constraint("Vertical", 16, 3, 22, 3))
sketch1.addConstraint(Sketcher.Constraint("Vertical", 17, 3, 23, 3))
sketch1.addConstraint(Sketcher.Constraint("Vertical", 18, 3, 24, 3))
sketch1.addConstraint(Sketcher.Constraint("Vertical", 20, 3, 25, 3))
sketch1.addConstraint(Sketcher.Constraint("Vertical", 26, 3, 33, 3))
sketch1.addConstraint(Sketcher.Constraint("Vertical", 27, 3, 34, 3))
sketch1.addConstraint(Sketcher.Constraint("Vertical", 28, 3, 35, 3))
sketch1.addConstraint(Sketcher.Constraint("Vertical", 31, 3, 37, 3))
sketch1.addConstraint(Sketcher.Constraint("Vertical", 29, 3, 39, 3))
sketch1.addConstraint(Sketcher.Constraint("Vertical", 30, 3, 40, 3))
sketch1.addConstraint(Sketcher.Constraint("Vertical", 32, 3, 41, 3))
sketch1.addConstraint(Sketcher.Constraint("Vertical", 36, 3, 42, 3))
sketch1.addConstraint(Sketcher.Constraint("Vertical", 38, 3, 43, 3))
sketch1.addConstraint(Sketcher.Constraint("Vertical", 10, 3, 44, 3))
sketch1.addConstraint(Sketcher.Constraint("Vertical", 11, 3, 45, 3))
sketch1.addConstraint(Sketcher.Constraint("Vertical", 12, 3, 46, 3))
sketch1.addConstraint(Sketcher.Constraint("Vertical", 22, 3, 58, 3))
sketch1.addConstraint(Sketcher.Constraint("Vertical", 23, 3, 59, 3))
sketch1.addConstraint(Sketcher.Constraint("Vertical", 24, 3, 60, 3))
sketch1.addConstraint(Sketcher.Constraint("Vertical", 21, 3, 61, 3))
sketch1.addConstraint(Sketcher.Constraint("Vertical", 61, 3, 62, 3))
sketch1.addConstraint(Sketcher.Constraint("Vertical", 63, 3, 66, 3))
sketch1.addConstraint(Sketcher.Constraint("Vertical", 62, 3, 73, 3))
sketch1.addConstraint(Sketcher.Constraint("Vertical", 64, 3, 75, 3))
sketch1.addConstraint(Sketcher.Constraint("Vertical", 65, 3, 76, 3))
sketch1.addConstraint(Sketcher.Constraint("Vertical", 66, 3, 77, 3))
sketch1.addConstraint(Sketcher.Constraint("Diameter", 4, 6.0))
sketch1.addConstraint(Sketcher.Constraint("Diameter", 7, 4.0))
sketch1.addConstraint(Sketcher.Constraint("Diameter", 61, 5.0))
sketch1.addConstraint(Sketcher.Constraint("DistanceX", 1, 1, 1, 2, 650.0))
sketch1.addConstraint(Sketcher.Constraint("DistanceY", 0, 2, 0, 1, 400.0))
sketch1.addConstraint(Sketcher.Constraint("DistanceX", 4, 3, -1, 1, 310.0))
sketch1.addConstraint(Sketcher.Constraint("DistanceY", 4, 3, -1, 1, 185.0))
sketch1.addConstraint(Sketcher.Constraint("DistanceX", 5, 3, -1, 1, 290.0))
sketch1.addConstraint(Sketcher.Constraint("DistanceX", 6, 3, -1, 1, 270.0))
sketch1.addConstraint(Sketcher.Constraint("DistanceX", 7, 3, -1, 1, 250.0))
sketch1.addConstraint(Sketcher.Constraint("DistanceX", 8, 3, -1, 1, 230.0))
sketch1.addConstraint(Sketcher.Constraint("DistanceX", 9, 3, -1, 1, 210.0))
sketch1.addConstraint(Sketcher.Constraint("DistanceY", 10, 3, -1, 1, 100.0))
sketch1.addConstraint(Sketcher.Constraint("DistanceX", 13, 3, -1, 1, 36.0))
sketch1.addConstraint(Sketcher.Constraint("DistanceX", 14, 3, -1, 1, 16.0))
sketch1.addConstraint(Sketcher.Constraint("DistanceX", -1, 1, 15, 3, 4.0))
sketch1.addConstraint(Sketcher.Constraint("DistanceX", -1, 1, 16, 3, 24.0))
sketch1.addConstraint(Sketcher.Constraint("DistanceX", -1, 1, 17, 3, 44.0))
sketch1.addConstraint(Sketcher.Constraint("DistanceX", -1, 1, 18, 3, 64.0))
sketch1.addConstraint(Sketcher.Constraint("DistanceX", -1, 1, 19, 3, 79.0))
sketch1.addConstraint(Sketcher.Constraint("DistanceY", 19, 3, -1, 1, 170.0))
sketch1.addConstraint(Sketcher.Constraint("DistanceX", -1, 1, 20, 3, 156.0))
sketch1.addConstraint(Sketcher.Constraint("DistanceY", 21, 3, -1, 1, 134.0))
sketch1.addConstraint(Sketcher.Constraint("DistanceX", -1, 1, 26, 3, 164.0))
sketch1.addConstraint(Sketcher.Constraint("DistanceX", -1, 1, 27, 3, 194.0))
sketch1.addConstraint(Sketcher.Constraint("DistanceX", -1, 1, 28, 3, 206.0))
sketch1.addConstraint(Sketcher.Constraint("DistanceY", 28, 3, -1, 1, 190.0))
sketch1.addConstraint(Sketcher.Constraint("DistanceX", -1, 1, 31, 3, 319.0))
sketch1.addConstraint(Sketcher.Constraint("DistanceY", 35, 3, -1, 1, 135.0))
sketch1.addConstraint(Sketcher.Constraint("DistanceX", -1, 1, 36, 3, 198.0))
sketch1.addConstraint(Sketcher.Constraint("DistanceY", 36, 3, -1, 1, 110.0))
sketch1.addConstraint(Sketcher.Constraint("DistanceX", -1, 1, 38, 3, 315.0))
sketch1.addConstraint(Sketcher.Constraint("DistanceY", 39, 3, -1, 1, 50.0))
sketch1.addConstraint(Sketcher.Constraint("DistanceY", 42, 3, -1, 1, 25.0))
sketch1.addConstraint(Sketcher.Constraint("DistanceY", -1, 1, 62, 3, 90.0))
sketch1.addConstraint(Sketcher.Constraint("DistanceX", -1, 1, 63, 3, 169.0))
sketch1.addConstraint(Sketcher.Constraint("DistanceX", -1, 1, 64, 3, 225.0))
sketch1.addConstraint(Sketcher.Constraint("DistanceX", -1, 1, 65, 3, 305.0))
sketch1.addConstraint(Sketcher.Constraint("DistanceY", -1, 1, 73, 3, 180.0))
sketch1.addConstraint(Sketcher.Constraint("DistanceY", -1, 1, 75, 3, 120.0))
pad1 = doc.addObject("PartDesign::Pad", "Pad")
body.addObject(pad1)
pad1.Profile = sketch1
pad1.Length = 10
doc.recompute()

fillet = doc.addObject("PartDesign::Fillet", "Fillet")
body.addObject(fillet)
fillet.Base = (pad1, edges_at(pad1, [
    (325, -200, 5),
    (-325, -200, 5),
    (-325, 200, 5),
    (325, 200, 5),
]))
fillet.Radius = 10

doc.recompute()
